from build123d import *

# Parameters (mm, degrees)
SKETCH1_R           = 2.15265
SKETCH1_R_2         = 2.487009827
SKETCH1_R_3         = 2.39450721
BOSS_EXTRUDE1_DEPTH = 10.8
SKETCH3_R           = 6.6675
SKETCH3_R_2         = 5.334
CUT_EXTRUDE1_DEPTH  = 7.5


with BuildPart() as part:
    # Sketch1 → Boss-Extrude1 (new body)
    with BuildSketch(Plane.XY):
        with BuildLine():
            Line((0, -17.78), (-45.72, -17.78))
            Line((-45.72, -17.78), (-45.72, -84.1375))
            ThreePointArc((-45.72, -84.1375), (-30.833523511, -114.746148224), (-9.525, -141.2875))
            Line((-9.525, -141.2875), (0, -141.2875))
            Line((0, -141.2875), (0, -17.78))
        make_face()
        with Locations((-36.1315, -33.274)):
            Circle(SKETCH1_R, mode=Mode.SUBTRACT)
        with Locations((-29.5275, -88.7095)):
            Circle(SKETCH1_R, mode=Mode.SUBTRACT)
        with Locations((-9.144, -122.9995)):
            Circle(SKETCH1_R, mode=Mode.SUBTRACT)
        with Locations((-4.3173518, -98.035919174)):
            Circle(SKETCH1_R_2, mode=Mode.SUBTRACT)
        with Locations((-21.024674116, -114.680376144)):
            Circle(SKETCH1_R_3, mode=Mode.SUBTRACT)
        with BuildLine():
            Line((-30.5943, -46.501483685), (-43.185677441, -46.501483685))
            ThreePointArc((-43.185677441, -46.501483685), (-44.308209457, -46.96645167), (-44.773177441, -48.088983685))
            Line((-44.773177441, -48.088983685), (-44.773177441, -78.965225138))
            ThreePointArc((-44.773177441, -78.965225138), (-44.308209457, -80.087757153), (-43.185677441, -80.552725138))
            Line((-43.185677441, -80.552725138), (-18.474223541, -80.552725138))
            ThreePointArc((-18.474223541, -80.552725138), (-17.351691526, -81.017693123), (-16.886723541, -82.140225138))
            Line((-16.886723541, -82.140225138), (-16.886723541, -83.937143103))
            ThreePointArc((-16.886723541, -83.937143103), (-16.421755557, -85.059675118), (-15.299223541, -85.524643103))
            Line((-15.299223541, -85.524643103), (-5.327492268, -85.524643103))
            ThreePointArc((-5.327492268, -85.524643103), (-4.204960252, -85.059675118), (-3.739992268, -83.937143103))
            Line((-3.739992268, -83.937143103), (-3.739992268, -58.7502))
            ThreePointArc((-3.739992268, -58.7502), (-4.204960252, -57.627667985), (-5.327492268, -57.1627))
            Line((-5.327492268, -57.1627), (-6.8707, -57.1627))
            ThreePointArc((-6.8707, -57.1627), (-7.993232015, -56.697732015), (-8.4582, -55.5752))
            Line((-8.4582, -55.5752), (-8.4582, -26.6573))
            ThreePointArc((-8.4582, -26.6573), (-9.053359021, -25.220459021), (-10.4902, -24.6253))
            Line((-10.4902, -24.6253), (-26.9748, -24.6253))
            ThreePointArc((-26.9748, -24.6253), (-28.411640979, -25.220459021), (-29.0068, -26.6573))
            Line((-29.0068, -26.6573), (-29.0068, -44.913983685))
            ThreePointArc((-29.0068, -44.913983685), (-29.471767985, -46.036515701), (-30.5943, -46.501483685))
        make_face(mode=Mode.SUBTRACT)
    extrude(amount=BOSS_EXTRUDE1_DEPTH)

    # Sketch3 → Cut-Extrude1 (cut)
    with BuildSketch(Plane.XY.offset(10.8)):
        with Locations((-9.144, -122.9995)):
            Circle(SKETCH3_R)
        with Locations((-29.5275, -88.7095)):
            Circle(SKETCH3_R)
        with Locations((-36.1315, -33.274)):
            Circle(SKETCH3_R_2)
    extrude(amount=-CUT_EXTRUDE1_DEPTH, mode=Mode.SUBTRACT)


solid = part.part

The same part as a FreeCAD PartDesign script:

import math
import FreeCAD as App
import Part
import Sketcher
Q = App.Units.Quantity

doc = App.newDocument("Part")
body = doc.addObject("PartDesign::Body", "Body")

sketch1 = doc.addObject("Sketcher::SketchObject", "Sketch")
body.addObject(sketch1)
sketch1.AttachmentSupport = (doc.XY_Plane, [""])
sketch1.MapMode = "FlatFace"
sketch1.addGeometry([
    Part.LineSegment(App.Vector(0, -17.78, 0), App.Vector(-45.72, -17.78, 0)),
    Part.LineSegment(App.Vector(-45.72, -17.78, 0), App.Vector(-45.72, -84.1375, 0)),
    Part.ArcOfCircle(Part.Circle(App.Vector(97.916904, -33.204211, 0), App.Vector(0, 0, 1), 152.4), math.radians(-160.47562), math.radians(-134.829493)),
    Part.LineSegment(App.Vector(-9.525, -141.2875, 0), App.Vector(0, -141.2875, 0)),
    Part.LineSegment(App.Vector(0, -141.2875, 0), App.Vector(0, -17.78, 0)),
    Part.Circle(App.Vector(-29.5275, -88.7095, 0), App.Vector(0, 0, 1), 2.15265),
    Part.Circle(App.Vector(-21.024674, -114.680376, 0), App.Vector(0, 0, 1), 2.394507),
    Part.Circle(App.Vector(-9.144, -122.9995, 0), App.Vector(0, 0, 1), 2.15265),
    Part.Circle(App.Vector(-4.317352, -98.035919, 0), App.Vector(0, 0, 1), 2.48701),
    Part.LineSegment(App.Vector(-43.185677, -46.501484, 0), App.Vector(-30.5943, -46.501484, 0)),
    Part.ArcOfCircle(Part.Circle(App.Vector(-30.5943, -44.913984, 0), App.Vector(0, 0, 1), 1.5875), math.radians(-90), math.radians(0)),
    Part.LineSegment(App.Vector(-29.0068, -44.913984, 0), App.Vector(-29.0068, -26.6573, 0)),
    Part.ArcOfCircle(Part.Circle(App.Vector(-26.9748, -26.6573, 0), App.Vector(0, 0, 1), 2.032), math.radians(90), math.radians(180)),
    Part.LineSegment(App.Vector(-26.9748, -24.6253, 0), App.Vector(-10.4902, -24.6253, 0)),
    Part.ArcOfCircle(Part.Circle(App.Vector(-10.4902, -26.6573, 0), App.Vector(0, 0, 1), 2.032), math.radians(0), math.radians(90)),
    Part.LineSegment(App.Vector(-8.4582, -26.6573, 0), App.Vector(-8.4582, -55.5752, 0)),
    Part.ArcOfCircle(Part.Circle(App.Vector(-6.8707, -55.5752, 0), App.Vector(0, 0, 1), 1.5875), math.radians(180), math.radians(270)),
    Part.LineSegment(App.Vector(-6.8707, -57.1627, 0), App.Vector(-5.327492, -57.1627, 0)),
    Part.ArcOfCircle(Part.Circle(App.Vector(-5.327492, -58.7502, 0), App.Vector(0, 0, 1), 1.5875), math.radians(0), math.radians(90)),
    Part.LineSegment(App.Vector(-3.739992, -58.7502, 0), App.Vector(-3.739992, -83.937143, 0)),
    Part.ArcOfCircle(Part.Circle(App.Vector(-5.327492, -83.937143, 0), App.Vector(0, 0, 1), 1.5875), math.radians(-90), math.radians(0)),
    Part.LineSegment(App.Vector(-5.327492, -85.524643, 0), App.Vector(-15.299224, -85.524643, 0)),
    Part.ArcOfCircle(Part.Circle(App.Vector(-15.299224, -83.937143, 0), App.Vector(0, 0, 1), 1.5875), math.radians(180), math.radians(270)),
    Part.LineSegment(App.Vector(-16.886724, -83.937143, 0), App.Vector(-16.886724, -82.140225, 0)),
    Part.ArcOfCircle(Part.Circle(App.Vector(-18.474224, -82.140225, 0), App.Vector(0, 0, 1), 1.5875), math.radians(0), math.radians(90)),
    Part.LineSegment(App.Vector(-18.474224, -80.552725, 0), App.Vector(-43.185677, -80.552725, 0)),
    Part.ArcOfCircle(Part.Circle(App.Vector(-43.185677, -78.965225, 0), App.Vector(0, 0, 1), 1.5875), math.radians(180), math.radians(270)),
    Part.LineSegment(App.Vector(-44.773177, -78.965225, 0), App.Vector(-44.773177, -48.088984, 0)),
    Part.ArcOfCircle(Part.Circle(App.Vector(-43.185677, -48.088984, 0), App.Vector(0, 0, 1), 1.5875), math.radians(90), math.radians(180)),
    Part.Circle(App.Vector(-36.1315, -33.274, 0), App.Vector(0, 0, 1), 2.15265),
], False)
sketch1.addConstraint([
    Sketcher.Constraint("Coincident", 0, 2, 1, 1),
    Sketcher.Constraint("Coincident", 1, 2, 2, 1),
    Sketcher.Constraint("Coincident", 2, 2, 3, 1),
    Sketcher.Constraint("Coincident", 3, 2, 4, 1),
    Sketcher.Constraint("Coincident", 4, 2, 0, 1),
    Sketcher.Constraint("Tangent", 9, 2, 10, 1),
    Sketcher.Constraint("Tangent", 10, 2, 11, 1),
    Sketcher.Constraint("Tangent", 11, 2, 12, 2),
    Sketcher.Constraint("Tangent", 12, 1, 13, 1),
    Sketcher.Constraint("Tangent", 13, 2, 14, 2),
    Sketcher.Constraint("Tangent", 14, 1, 15, 1),
    Sketcher.Constraint("Tangent", 15, 2, 16, 1),
    Sketcher.Constraint("Tangent", 16, 2, 17, 1),
    Sketcher.Constraint("Tangent", 17, 2, 18, 2),
    Sketcher.Constraint("Tangent", 18, 1, 19, 1),
    Sketcher.Constraint("Tangent", 19, 2, 20, 2),
    Sketcher.Constraint("Tangent", 20, 1, 21, 1),
    Sketcher.Constraint("Tangent", 21, 2, 22, 2),
    Sketcher.Constraint("Tangent", 22, 1, 23, 1),
    Sketcher.Constraint("Tangent", 23, 2, 24, 1),
    Sketcher.Constraint("Tangent", 24, 2, 25, 1),
    Sketcher.Constraint("Tangent", 25, 2, 26, 2),
    Sketcher.Constraint("Tangent", 26, 1, 27, 1),
    Sketcher.Constraint("Tangent", 27, 2, 28, 2),
    Sketcher.Constraint("Tangent", 28, 1, 9, 1),
    Sketcher.Constraint("Horizontal", 0),
    Sketcher.Constraint("Vertical", 1),
    Sketcher.Constraint("Horizontal", 3),
    Sketcher.Constraint("Vertical", 4),
    Sketcher.Constraint("Horizontal", 9),
    Sketcher.Constraint("Vertical", 11),
    Sketcher.Constraint("Horizontal", 13),
    Sketcher.Constraint("Vertical", 15),
    Sketcher.Constraint("Horizontal", 17),
    Sketcher.Constraint("Vertical", 19),
    Sketcher.Constraint("Horizontal", 21),
    Sketcher.Constraint("Vertical", 23),
    Sketcher.Constraint("Horizontal", 25),
    Sketcher.Constraint("Vertical", 27),
    Sketcher.Constraint("Equal", 5, 7),
    Sketcher.Constraint("Equal", 12, 14),
    Sketcher.Constraint("Equal", 10, 16),
    Sketcher.Constraint("Equal", 16, 18),
    Sketcher.Constraint("Equal", 18, 20),
    Sketcher.Constraint("Equal", 20, 22),
    Sketcher.Constraint("Equal", 22, 24),
    Sketcher.Constraint("Equal", 24, 26),
    Sketcher.Constraint("Equal", 26, 28),
    Sketcher.Constraint("Equal", 7, 29),
    Sketcher.Constraint("PointOnObject", 3, 2, -2),
    Sketcher.Constraint("Radius", 2, Q("6 in")),
    Sketcher.Constraint("Radius", 12, Q("0.08 in")),
    Sketcher.Constraint("DistanceX", 0, 2, 0, 1, Q("1.8 in")),
    Sketcher.Constraint("Radius", 10, Q("0.0625 in")),
    Sketcher.Constraint("Diameter", 5, Q("0.1695 in")),
    Sketcher.Constraint("DistanceY", 0, 2, -1, 1, Q("0.7 in")),
    Sketcher.Constraint("DistanceX", 3, 1, 3, 2, Q("0.375 in")),
    Sketcher.Constraint("DistanceX", 13, 1, 13, 2, Q("0.649 in")),
    Sketcher.Constraint("DistanceX", 7, 3, -1, 1, Q("0.36 in")),
    Sketcher.Constraint("DistanceY", 29, 3, -1, 1, Q("1.31 in")),
    Sketcher.Constraint("DistanceY", 7, 3, 5, 3, Q("1.35 in")),
    Sketcher.Constraint("DistanceY", 5, 3, 1, 2, Q("0.18 in")),
    Sketcher.Constraint("DistanceY", 2, 2, 7, 3, Q("0.72 in")),
    Sketcher.Constraint("Diameter", 8, Q("4.97402 mm")),
    Sketcher.Constraint("DistanceY", 1, 2, 1, 1, Q("2.6125 in")),
    Sketcher.Constraint("DistanceY", 15, 2, 15, 1, Q("1.1385 in")),
    Sketcher.Constraint("DistanceY", 27, 1, 27, 2, Q("1.2156001 in")),
    Sketcher.Constraint("DistanceX", 12, 3, -1, 1, Q("1.062 in")),
    Sketcher.Constraint("DistanceY", 16, 3, -1, 1, Q("2.188 in")),
    Sketcher.Constraint("DistanceX", 10, 3, 5, 3, Q("0.042 in")),
    Sketcher.Constraint("DistanceX", 29, 3, 10, 3, Q("0.218 in")),
    Sketcher.Constraint("Diameter", 6, Q("4.789014 mm")),
    Sketcher.Constraint("DistanceX", 21, 2, 21, 1, Q("9.971731 mm")),
    Sketcher.Constraint("DistanceX", 9, 1, 9, 2, Q("12.591377 mm")),
    Sketcher.Constraint("DistanceX", 17, 1, 17, 2, Q("1.543208 mm")),
    Sketcher.Constraint("DistanceY", 11, 1, 11, 2, Q("18.256684 mm")),
    Sketcher.Constraint("DistanceY", 19, 2, 19, 1, Q("25.186943 mm")),
    Sketcher.Constraint("DistanceX", 8, 3, -1, 1, Q("4.317352 mm")),
    Sketcher.Constraint("DistanceY", 8, 3, -1, 1, Q("98.035919 mm")),
    Sketcher.Constraint("DistanceX", 6, 3, 20, 3, Q("15.697182 mm")),
    Sketcher.Constraint("DistanceY", 6, 3, -1, 1, Q("114.680376 mm")),
])
pad1 = doc.addObject("PartDesign::Pad", "Pad")
body.addObject(pad1)
pad1.Profile = sketch1
pad1.Length = 10.8

sketch2 = doc.addObject("Sketcher::SketchObject", "Sketch001")
body.addObject(sketch2)
sketch2.AttachmentSupport = (doc.XY_Plane, [""])
sketch2.MapMode = "FlatFace"
sketch2.AttachmentOffset = App.Placement(App.Vector(0, 0, 10.8), App.Rotation())
sketch2.addGeometry([
    Part.Circle(App.Vector(-9.144, -122.9995, 0), App.Vector(0, 0, 1), 6.6675),
    Part.Circle(App.Vector(-29.5275, -88.7095, 0), App.Vector(0, 0, 1), 6.6675),
    Part.Circle(App.Vector(-36.1315, -33.274, 0), App.Vector(0, 0, 1), 5.334),
], False)
sketch2.addConstraint([
    Sketcher.Constraint("Equal", 0, 1),
    Sketcher.Constraint("Diameter", 2, Q("0.42 in")),
    Sketcher.Constraint("Diameter", 0, Q("0.525 in")),
    Sketcher.Constraint("DistanceX", 0, 3, -1, 1, Q("0.36 in")),
    Sketcher.Constraint("DistanceY", 2, 3, -1, 1, Q("1.31 in")),
    Sketcher.Constraint("DistanceY", 0, 3, 1, 3, Q("1.35 in")),
    Sketcher.Constraint("DistanceX", 2, 3, 1, 3, Q("0.26 in")),
    Sketcher.Constraint("DistanceX", 2, 3, 0, 3, Q("1.0625 in")),
    Sketcher.Constraint("DistanceY", 0, 3, -1, 1, Q("4.8425 in")),
])
pocket1 = doc.addObject("PartDesign::Pocket", "Pocket")
body.addObject(pocket1)
pocket1.Profile = sketch2
pocket1.Length = 7.5

doc.recompute()
